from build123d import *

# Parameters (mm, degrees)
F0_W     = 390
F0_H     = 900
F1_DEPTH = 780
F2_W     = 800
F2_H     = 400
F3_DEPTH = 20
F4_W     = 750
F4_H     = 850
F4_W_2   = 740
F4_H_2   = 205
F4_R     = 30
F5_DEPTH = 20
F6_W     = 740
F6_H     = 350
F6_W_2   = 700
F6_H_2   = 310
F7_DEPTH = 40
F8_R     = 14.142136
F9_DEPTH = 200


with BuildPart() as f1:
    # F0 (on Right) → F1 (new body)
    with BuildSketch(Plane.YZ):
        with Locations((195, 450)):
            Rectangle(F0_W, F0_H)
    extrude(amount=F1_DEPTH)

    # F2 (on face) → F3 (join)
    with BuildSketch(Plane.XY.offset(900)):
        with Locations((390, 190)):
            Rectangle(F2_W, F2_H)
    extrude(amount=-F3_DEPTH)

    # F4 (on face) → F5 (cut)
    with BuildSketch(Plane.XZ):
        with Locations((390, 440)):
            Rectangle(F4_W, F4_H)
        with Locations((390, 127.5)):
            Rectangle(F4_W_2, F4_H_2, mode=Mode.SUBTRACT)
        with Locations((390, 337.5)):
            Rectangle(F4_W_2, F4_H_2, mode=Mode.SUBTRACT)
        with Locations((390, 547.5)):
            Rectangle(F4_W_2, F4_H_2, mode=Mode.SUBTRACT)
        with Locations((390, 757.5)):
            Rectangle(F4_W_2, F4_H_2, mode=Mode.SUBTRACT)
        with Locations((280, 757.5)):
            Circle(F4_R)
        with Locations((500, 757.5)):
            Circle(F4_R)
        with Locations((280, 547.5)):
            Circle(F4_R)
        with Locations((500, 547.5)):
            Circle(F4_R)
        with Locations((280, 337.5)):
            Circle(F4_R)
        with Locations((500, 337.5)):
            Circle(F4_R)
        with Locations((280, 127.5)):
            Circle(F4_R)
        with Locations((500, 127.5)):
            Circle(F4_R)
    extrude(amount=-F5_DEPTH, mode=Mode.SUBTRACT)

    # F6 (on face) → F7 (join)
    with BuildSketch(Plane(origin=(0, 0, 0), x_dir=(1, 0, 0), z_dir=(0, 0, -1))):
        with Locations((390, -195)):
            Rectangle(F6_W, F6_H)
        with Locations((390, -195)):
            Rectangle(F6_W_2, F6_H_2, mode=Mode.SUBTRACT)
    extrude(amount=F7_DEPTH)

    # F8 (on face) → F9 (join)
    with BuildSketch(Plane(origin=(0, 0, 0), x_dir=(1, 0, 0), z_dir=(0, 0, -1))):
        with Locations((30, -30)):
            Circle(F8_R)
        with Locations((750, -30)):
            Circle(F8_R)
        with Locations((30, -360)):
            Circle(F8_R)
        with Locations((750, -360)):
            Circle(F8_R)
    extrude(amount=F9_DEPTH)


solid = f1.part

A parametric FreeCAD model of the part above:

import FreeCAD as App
import Part
import Sketcher
Q = App.Units.Quantity

doc = App.newDocument("Part")
body = doc.addObject("PartDesign::Body", "Body")

sketch1 = body.newObject("Sketcher::SketchObject", "Sketch")
sketch1.AttachmentSupport = (doc.getObject("YZ_Plane"), [""])
sketch1.MapMode = "FlatFace"
sketch1.addGeometry([
    Part.LineSegment(App.Vector(0, 900, 0), App.Vector(0, 0, 0)),
    Part.LineSegment(App.Vector(0, 0, 0), App.Vector(390, 0, 0)),
    Part.LineSegment(App.Vector(390, 0, 0), App.Vector(390, 900, 0)),
    Part.LineSegment(App.Vector(390, 900, 0), App.Vector(0, 900, 0)),
], False)
sketch1.addConstraint([
    Sketcher.Constraint("Coincident", 0, 2, 1, 1),
    Sketcher.Constraint("Coincident", 1, 2, 2, 1),
    Sketcher.Constraint("Coincident", 2, 2, 3, 1),
    Sketcher.Constraint("Coincident", 3, 2, 0, 1),
    Sketcher.Constraint("Vertical", 0),
    Sketcher.Constraint("Horizontal", 1),
    Sketcher.Constraint("Vertical", 2),
    Sketcher.Constraint("Horizontal", 3),
    Sketcher.Constraint("Coincident", 0, 2, -1, 1),
    Sketcher.Constraint("DistanceX", 1, 1, 1, 2, Q("390 mm")),
    Sketcher.Constraint("DistanceY", 0, 2, 0, 1, Q("900 mm")),
])
pad1 = body.newObject("PartDesign::Pad", "Pad")
pad1.Profile = sketch1
pad1.Length = 780

sketch2 = body.newObject("Sketcher::SketchObject", "Sketch001")
sketch2.AttachmentSupport = (doc.getObject("XY_Plane"), [""])
sketch2.MapMode = "FlatFace"
sketch2.AttachmentOffset = App.Placement(App.Vector(0, 0, 900), App.Rotation())
sketch2.addGeometry([
    Part.LineSegment(App.Vector(-10, 390, 0), App.Vector(-10, -10, 0)),
    Part.LineSegment(App.Vector(-10, -10, 0), App.Vector(790, -10, 0)),
    Part.LineSegment(App.Vector(790, -10, 0), App.Vector(790, 390, 0)),
    Part.LineSegment(App.Vector(790, 390, 0), App.Vector(-10, 390, 0)),
], False)
sketch2.addConstraint([
    Sketcher.Constraint("Coincident", 0, 2, 1, 1),
    Sketcher.Constraint("Coincident", 1, 2, 2, 1),
    Sketcher.Constraint("Coincident", 2, 2, 3, 1),
    Sketcher.Constraint("Coincident", 3, 2, 0, 1),
    Sketcher.Constraint("Vertical", 0),
    Sketcher.Constraint("Horizontal", 1),
    Sketcher.Constraint("Vertical", 2),
    Sketcher.Constraint("Horizontal", 3),
    Sketcher.Constraint("DistanceX", 1, 1, 1, 2, Q("800 mm")),
    Sketcher.Constraint("DistanceY", 0, 2, 0, 1, Q("400 mm")),
    Sketcher.Constraint("DistanceX", 0, 2, -1, 1, Q("10 mm")),
    Sketcher.Constraint("DistanceY", 0, 2, -1, 1, Q("10 mm")),
])
pad2 = body.newObject("PartDesign::Pad", "Pad001")
pad2.Profile = sketch2
pad2.Length = 20
pad2.Reversed = True

sketch3 = body.newObject("Sketcher::SketchObject", "Sketch002")
sketch3.AttachmentSupport = (doc.getObject("XZ_Plane"), [""])
sketch3.MapMode = "FlatFace"
sketch3.addGeometry([
    Part.LineSegment(App.Vector(15, 865, 0), App.Vector(15, 15, 0)),
    Part.LineSegment(App.Vector(15, 15, 0), App.Vector(765, 15, 0)),
    Part.LineSegment(App.Vector(765, 15, 0), App.Vector(765, 865, 0)),
    Part.LineSegment(App.Vector(765, 865, 0), App.Vector(15, 865, 0)),
    Part.LineSegment(App.Vector(760, 25, 0), App.Vector(20, 25, 0)),
    Part.LineSegment(App.Vector(20, 25, 0), App.Vector(20, 230, 0)),
    Part.LineSegment(App.Vector(20, 230, 0), App.Vector(760, 230, 0)),
    Part.LineSegment(App.Vector(760, 230, 0), App.Vector(760, 25, 0)),
    Part.LineSegment(App.Vector(760, 235, 0), App.Vector(20, 235, 0)),
    Part.LineSegment(App.Vector(20, 235, 0), App.Vector(20, 440, 0)),
    Part.LineSegment(App.Vector(20, 440, 0), App.Vector(760, 440, 0)),
    Part.LineSegment(App.Vector(760, 440, 0), App.Vector(760, 235, 0)),
    Part.LineSegment(App.Vector(760, 445, 0), App.Vector(20, 445, 0)),
    Part.LineSegment(App.Vector(20, 445, 0), App.Vector(20, 650, 0)),
    Part.LineSegment(App.Vector(20, 650, 0), App.Vector(760, 650, 0)),
    Part.LineSegment(App.Vector(760, 650, 0), App.Vector(760, 445, 0)),
    Part.LineSegment(App.Vector(760, 655, 0), App.Vector(20, 655, 0)),
    Part.LineSegment(App.Vector(20, 655, 0), App.Vector(20, 860, 0)),
    Part.LineSegment(App.Vector(20, 860, 0), App.Vector(760, 860, 0)),
    Part.LineSegment(App.Vector(760, 860, 0), App.Vector(760, 655, 0)),
    Part.Circle(App.Vector(280, 757.5, 0), App.Vector(0, 0, 1), 30),
    Part.Circle(App.Vector(500, 757.5, 0), App.Vector(0, 0, 1), 30),
    Part.Circle(App.Vector(280, 547.5, 0), App.Vector(0, 0, 1), 30),
    Part.Circle(App.Vector(500, 547.5, 0), App.Vector(0, 0, 1), 30),
    Part.Circle(App.Vector(280, 337.5, 0), App.Vector(0, 0, 1), 30),
    Part.Circle(App.Vector(500, 337.5, 0), App.Vector(0, 0, 1), 30),
    Part.Circle(App.Vector(280, 127.5, 0), App.Vector(0, 0, 1), 30),
    Part.Circle(App.Vector(500, 127.5, 0), App.Vector(0, 0, 1), 30),
], False)
sketch3.addConstraint([
    Sketcher.Constraint("Coincident", 0, 2, 1, 1),
    Sketcher.Constraint("Coincident", 1, 2, 2, 1),
    Sketcher.Constraint("Coincident", 2, 2, 3, 1),
    Sketcher.Constraint("Coincident", 3, 2, 0, 1),
    Sketcher.Constraint("Coincident", 4, 2, 5, 1),
    Sketcher.Constraint("Coincident", 5, 2, 6, 1),
    Sketcher.Constraint("Coincident", 6, 2, 7, 1),
    Sketcher.Constraint("Coincident", 7, 2, 4, 1),
    Sketcher.Constraint("Coincident", 8, 2, 9, 1),
    Sketcher.Constraint("Coincident", 9, 2, 10, 1),
    Sketcher.Constraint("Coincident", 10, 2, 11, 1),
    Sketcher.Constraint("Coincident", 11, 2, 8, 1),
    Sketcher.Constraint("Coincident", 12, 2, 13, 1),
    Sketcher.Constraint("Coincident", 13, 2, 14, 1),
    Sketcher.Constraint("Coincident", 14, 2, 15, 1),
    Sketcher.Constraint("Coincident", 15, 2, 12, 1),
    Sketcher.Constraint("Coincident", 16, 2, 17, 1),
    Sketcher.Constraint("Coincident", 17, 2, 18, 1),
    Sketcher.Constraint("Coincident", 18, 2, 19, 1),
    Sketcher.Constraint("Coincident", 19, 2, 16, 1),
    Sketcher.Constraint("Vertical", 0),
    Sketcher.Constraint("Horizontal", 1),
    Sketcher.Constraint("Vertical", 2),
    Sketcher.Constraint("Horizontal", 3),
    Sketcher.Constraint("Horizontal", 4),
    Sketcher.Constraint("Vertical", 5),
    Sketcher.Constraint("Horizontal", 6),
    Sketcher.Constraint("Vertical", 7),
    Sketcher.Constraint("Horizontal", 8),
    Sketcher.Constraint("Vertical", 9),
    Sketcher.Constraint("Horizontal", 10),
    Sketcher.Constraint("Vertical", 11),
    Sketcher.Constraint("Horizontal", 12),
    Sketcher.Constraint("Vertical", 13),
    Sketcher.Constraint("Horizontal", 14),
    Sketcher.Constraint("Vertical", 15),
    Sketcher.Constraint("Horizontal", 16),
    Sketcher.Constraint("Vertical", 17),
    Sketcher.Constraint("Horizontal", 18),
    Sketcher.Constraint("Vertical", 19),
    Sketcher.Constraint("Equal", 20, 21),
    Sketcher.Constraint("Equal", 21, 22),
    Sketcher.Constraint("Equal", 22, 23),
    Sketcher.Constraint("Equal", 23, 24),
    Sketcher.Constraint("Equal", 24, 25),
    Sketcher.Constraint("Equal", 25, 26),
    Sketcher.Constraint("Equal", 26, 27),
    Sketcher.Constraint("Horizontal", 20, 3, 21, 3),
    Sketcher.Constraint("Horizontal", 22, 3, 23, 3),
    Sketcher.Constraint("Horizontal", 24, 3, 25, 3),
    Sketcher.Constraint("Horizontal", 26, 3, 27, 3),
    Sketcher.Constraint("Vertical", 20, 3, 22, 3),
    Sketcher.Constraint("Vertical", 21, 3, 23, 3),
    Sketcher.Constraint("Vertical", 22, 3, 24, 3),
    Sketcher.Constraint("Vertical", 23, 3, 25, 3),
    Sketcher.Constraint("Vertical", 24, 3, 26, 3),
    Sketcher.Constraint("Vertical", 25, 3, 27, 3),
    Sketcher.Constraint("Vertical", 5, 2, 8, 2),
    Sketcher.Constraint("Vertical", 7, 2, 10, 2),
    Sketcher.Constraint("Vertical", 9, 2, 12, 2),
    Sketcher.Constraint("Vertical", 11, 2, 14, 2),
    Sketcher.Constraint("Vertical", 13, 2, 16, 2),
    Sketcher.Constraint("Vertical", 15, 2, 18, 2),
    Sketcher.Constraint("Equal", 7, 9),
    Sketcher.Constraint("Equal", 11, 13),
    Sketcher.Constraint("Equal", 15, 17),
    Sketcher.Constraint("Diameter", 20, Q("60 mm")),
    Sketcher.Constraint("DistanceX", 1, 1, 1, 2, Q("750 mm")),
    Sketcher.Constraint("DistanceX", 4, 2, 4, 1, Q("740 mm")),
    Sketcher.Constraint("DistanceY", 0, 2, 0, 1, Q("850 mm")),
    Sketcher.Constraint("DistanceY", 5, 1, 5, 2, Q("205 mm")),
    Sketcher.Constraint("DistanceX", -1, 1, 20, 3, Q("280 mm")),
    Sketcher.Constraint("DistanceX", -1, 1, 21, 3, Q("500 mm")),
    Sketcher.Constraint("DistanceX", -1, 1, 0, 2, Q("15 mm")),
    Sketcher.Constraint("DistanceY", -1, 1, 0, 2, Q("15 mm")),
    Sketcher.Constraint("DistanceX", -1, 1, 4, 2, Q("20 mm")),
    Sketcher.Constraint("DistanceY", -1, 1, 4, 2, Q("25 mm")),
    Sketcher.Constraint("DistanceY", -1, 1, 8, 2, Q("235 mm")),
    Sketcher.Constraint("DistanceY", -1, 1, 12, 2, Q("445 mm")),
    Sketcher.Constraint("DistanceY", -1, 1, 16, 2, Q("655 mm")),
    Sketcher.Constraint("DistanceY", 22, 3, 20, 3, Q("210 mm")),
    Sketcher.Constraint("DistanceY", 24, 3, 22, 3, Q("210 mm")),
    Sketcher.Constraint("DistanceY", 26, 3, 24, 3, Q("210 mm")),
    Sketcher.Constraint("DistanceY", -1, 1, 20, 3, Q("757.5 mm")),
])
pocket1 = body.newObject("PartDesign::Pocket", "Pocket")
pocket1.Profile = sketch3
pocket1.Length = 20

sketch4 = body.newObject("Sketcher::SketchObject", "Sketch003")
sketch4.AttachmentSupport = (doc.getObject("XY_Plane"), [""])
sketch4.MapMode = "FlatFace"
sketch4.addGeometry([
    Part.LineSegment(App.Vector(20, 20, 0), App.Vector(20, 370, 0)),
    Part.LineSegment(App.Vector(20, 370, 0), App.Vector(760, 370, 0)),
    Part.LineSegment(App.Vector(760, 370, 0), App.Vector(760, 20, 0)),
    Part.LineSegment(App.Vector(760, 20, 0), App.Vector(20, 20, 0)),
    Part.LineSegment(App.Vector(740, 350, 0), App.Vector(40, 350, 0)),
    Part.LineSegment(App.Vector(40, 350, 0), App.Vector(40, 40, 0)),
    Part.LineSegment(App.Vector(40, 40, 0), App.Vector(740, 40, 0)),
    Part.LineSegment(App.Vector(740, 40, 0), App.Vector(740, 350, 0)),
], False)
sketch4.addConstraint([
    Sketcher.Constraint("Coincident", 0, 2, 1, 1),
    Sketcher.Constraint("Coincident", 1, 2, 2, 1),
    Sketcher.Constraint("Coincident", 2, 2, 3, 1),
    Sketcher.Constraint("Coincident", 3, 2, 0, 1),
    Sketcher.Constraint("Coincident", 4, 2, 5, 1),
    Sketcher.Constraint("Coincident", 5, 2, 6, 1),
    Sketcher.Constraint("Coincident", 6, 2, 7, 1),
    Sketcher.Constraint("Coincident", 7, 2, 4, 1),
    Sketcher.Constraint("Vertical", 0),
    Sketcher.Constraint("Horizontal", 1),
    Sketcher.Constraint("Vertical", 2),
    Sketcher.Constraint("Horizontal", 3),
    Sketcher.Constraint("Horizontal", 4),
    Sketcher.Constraint("Vertical", 5),
    Sketcher.Constraint("Horizontal", 6),
    Sketcher.Constraint("Vertical", 7),
    Sketcher.Constraint("DistanceX", 1, 1, 1, 2, Q("740 mm")),
    Sketcher.Constraint("DistanceX", 4, 2, 4, 1, Q("700 mm")),
    Sketcher.Constraint("DistanceY", 0, 1, 0, 2, Q("350 mm")),
    Sketcher.Constraint("DistanceY", 5, 2, 5, 1, Q("310 mm")),
    Sketcher.Constraint("DistanceX", -1, 1, 0, 2, Q("20 mm")),
    Sketcher.Constraint("DistanceY", -1, 1, 0, 2, Q("370 mm")),
    Sketcher.Constraint("DistanceX", -1, 1, 4, 2, Q("40 mm")),
    Sketcher.Constraint("DistanceY", -1, 1, 4, 2, Q("350 mm")),
])
pad3 = body.newObject("PartDesign::Pad", "Pad002")
pad3.Profile = sketch4
pad3.Length = 40
pad3.Reversed = True

sketch5 = body.newObject("Sketcher::SketchObject", "Sketch004")
sketch5.AttachmentSupport = (doc.getObject("XY_Plane"), [""])
sketch5.MapMode = "FlatFace"
sketch5.addGeometry([
    Part.Circle(App.Vector(30, 30, 0), App.Vector(0, 0, 1), 14.142136),
    Part.Circle(App.Vector(750, 30, 0), App.Vector(0, 0, 1), 14.142136),
    Part.Circle(App.Vector(30, 360, 0), App.Vector(0, 0, 1), 14.142136),
    Part.Circle(App.Vector(750, 360, 0), App.Vector(0, 0, 1), 14.142136),
], False)
sketch5.addConstraint([
    Sketcher.Constraint("Equal", 0, 1),
    Sketcher.Constraint("Equal", 1, 2),
    Sketcher.Constraint("Equal", 2, 3),
    Sketcher.Constraint("Horizontal", 0, 3, 1, 3),
    Sketcher.Constraint("Horizontal", 2, 3, 3, 3),
    Sketcher.Constraint("Vertical", 0, 3, 2, 3),
    Sketcher.Constraint("Vertical", 1, 3, 3, 3),
    Sketcher.Constraint("DistanceX", -1, 1, 0, 3, Q("30 mm")),
    Sketcher.Constraint("DistanceY", -1, 1, 0, 3, Q("30 mm")),
    Sketcher.Constraint("DistanceX", -1, 1, 1, 3, Q("750 mm")),
    Sketcher.Constraint("DistanceY", -1, 1, 2, 3, Q("360 mm")),
    Sketcher.Constraint("Diameter", 0, Q("28.284272 mm")),
])
pad4 = body.newObject("PartDesign::Pad", "Pad003")
pad4.Profile = sketch5
pad4.Length = 200
pad4.Reversed = True

doc.recompute()
